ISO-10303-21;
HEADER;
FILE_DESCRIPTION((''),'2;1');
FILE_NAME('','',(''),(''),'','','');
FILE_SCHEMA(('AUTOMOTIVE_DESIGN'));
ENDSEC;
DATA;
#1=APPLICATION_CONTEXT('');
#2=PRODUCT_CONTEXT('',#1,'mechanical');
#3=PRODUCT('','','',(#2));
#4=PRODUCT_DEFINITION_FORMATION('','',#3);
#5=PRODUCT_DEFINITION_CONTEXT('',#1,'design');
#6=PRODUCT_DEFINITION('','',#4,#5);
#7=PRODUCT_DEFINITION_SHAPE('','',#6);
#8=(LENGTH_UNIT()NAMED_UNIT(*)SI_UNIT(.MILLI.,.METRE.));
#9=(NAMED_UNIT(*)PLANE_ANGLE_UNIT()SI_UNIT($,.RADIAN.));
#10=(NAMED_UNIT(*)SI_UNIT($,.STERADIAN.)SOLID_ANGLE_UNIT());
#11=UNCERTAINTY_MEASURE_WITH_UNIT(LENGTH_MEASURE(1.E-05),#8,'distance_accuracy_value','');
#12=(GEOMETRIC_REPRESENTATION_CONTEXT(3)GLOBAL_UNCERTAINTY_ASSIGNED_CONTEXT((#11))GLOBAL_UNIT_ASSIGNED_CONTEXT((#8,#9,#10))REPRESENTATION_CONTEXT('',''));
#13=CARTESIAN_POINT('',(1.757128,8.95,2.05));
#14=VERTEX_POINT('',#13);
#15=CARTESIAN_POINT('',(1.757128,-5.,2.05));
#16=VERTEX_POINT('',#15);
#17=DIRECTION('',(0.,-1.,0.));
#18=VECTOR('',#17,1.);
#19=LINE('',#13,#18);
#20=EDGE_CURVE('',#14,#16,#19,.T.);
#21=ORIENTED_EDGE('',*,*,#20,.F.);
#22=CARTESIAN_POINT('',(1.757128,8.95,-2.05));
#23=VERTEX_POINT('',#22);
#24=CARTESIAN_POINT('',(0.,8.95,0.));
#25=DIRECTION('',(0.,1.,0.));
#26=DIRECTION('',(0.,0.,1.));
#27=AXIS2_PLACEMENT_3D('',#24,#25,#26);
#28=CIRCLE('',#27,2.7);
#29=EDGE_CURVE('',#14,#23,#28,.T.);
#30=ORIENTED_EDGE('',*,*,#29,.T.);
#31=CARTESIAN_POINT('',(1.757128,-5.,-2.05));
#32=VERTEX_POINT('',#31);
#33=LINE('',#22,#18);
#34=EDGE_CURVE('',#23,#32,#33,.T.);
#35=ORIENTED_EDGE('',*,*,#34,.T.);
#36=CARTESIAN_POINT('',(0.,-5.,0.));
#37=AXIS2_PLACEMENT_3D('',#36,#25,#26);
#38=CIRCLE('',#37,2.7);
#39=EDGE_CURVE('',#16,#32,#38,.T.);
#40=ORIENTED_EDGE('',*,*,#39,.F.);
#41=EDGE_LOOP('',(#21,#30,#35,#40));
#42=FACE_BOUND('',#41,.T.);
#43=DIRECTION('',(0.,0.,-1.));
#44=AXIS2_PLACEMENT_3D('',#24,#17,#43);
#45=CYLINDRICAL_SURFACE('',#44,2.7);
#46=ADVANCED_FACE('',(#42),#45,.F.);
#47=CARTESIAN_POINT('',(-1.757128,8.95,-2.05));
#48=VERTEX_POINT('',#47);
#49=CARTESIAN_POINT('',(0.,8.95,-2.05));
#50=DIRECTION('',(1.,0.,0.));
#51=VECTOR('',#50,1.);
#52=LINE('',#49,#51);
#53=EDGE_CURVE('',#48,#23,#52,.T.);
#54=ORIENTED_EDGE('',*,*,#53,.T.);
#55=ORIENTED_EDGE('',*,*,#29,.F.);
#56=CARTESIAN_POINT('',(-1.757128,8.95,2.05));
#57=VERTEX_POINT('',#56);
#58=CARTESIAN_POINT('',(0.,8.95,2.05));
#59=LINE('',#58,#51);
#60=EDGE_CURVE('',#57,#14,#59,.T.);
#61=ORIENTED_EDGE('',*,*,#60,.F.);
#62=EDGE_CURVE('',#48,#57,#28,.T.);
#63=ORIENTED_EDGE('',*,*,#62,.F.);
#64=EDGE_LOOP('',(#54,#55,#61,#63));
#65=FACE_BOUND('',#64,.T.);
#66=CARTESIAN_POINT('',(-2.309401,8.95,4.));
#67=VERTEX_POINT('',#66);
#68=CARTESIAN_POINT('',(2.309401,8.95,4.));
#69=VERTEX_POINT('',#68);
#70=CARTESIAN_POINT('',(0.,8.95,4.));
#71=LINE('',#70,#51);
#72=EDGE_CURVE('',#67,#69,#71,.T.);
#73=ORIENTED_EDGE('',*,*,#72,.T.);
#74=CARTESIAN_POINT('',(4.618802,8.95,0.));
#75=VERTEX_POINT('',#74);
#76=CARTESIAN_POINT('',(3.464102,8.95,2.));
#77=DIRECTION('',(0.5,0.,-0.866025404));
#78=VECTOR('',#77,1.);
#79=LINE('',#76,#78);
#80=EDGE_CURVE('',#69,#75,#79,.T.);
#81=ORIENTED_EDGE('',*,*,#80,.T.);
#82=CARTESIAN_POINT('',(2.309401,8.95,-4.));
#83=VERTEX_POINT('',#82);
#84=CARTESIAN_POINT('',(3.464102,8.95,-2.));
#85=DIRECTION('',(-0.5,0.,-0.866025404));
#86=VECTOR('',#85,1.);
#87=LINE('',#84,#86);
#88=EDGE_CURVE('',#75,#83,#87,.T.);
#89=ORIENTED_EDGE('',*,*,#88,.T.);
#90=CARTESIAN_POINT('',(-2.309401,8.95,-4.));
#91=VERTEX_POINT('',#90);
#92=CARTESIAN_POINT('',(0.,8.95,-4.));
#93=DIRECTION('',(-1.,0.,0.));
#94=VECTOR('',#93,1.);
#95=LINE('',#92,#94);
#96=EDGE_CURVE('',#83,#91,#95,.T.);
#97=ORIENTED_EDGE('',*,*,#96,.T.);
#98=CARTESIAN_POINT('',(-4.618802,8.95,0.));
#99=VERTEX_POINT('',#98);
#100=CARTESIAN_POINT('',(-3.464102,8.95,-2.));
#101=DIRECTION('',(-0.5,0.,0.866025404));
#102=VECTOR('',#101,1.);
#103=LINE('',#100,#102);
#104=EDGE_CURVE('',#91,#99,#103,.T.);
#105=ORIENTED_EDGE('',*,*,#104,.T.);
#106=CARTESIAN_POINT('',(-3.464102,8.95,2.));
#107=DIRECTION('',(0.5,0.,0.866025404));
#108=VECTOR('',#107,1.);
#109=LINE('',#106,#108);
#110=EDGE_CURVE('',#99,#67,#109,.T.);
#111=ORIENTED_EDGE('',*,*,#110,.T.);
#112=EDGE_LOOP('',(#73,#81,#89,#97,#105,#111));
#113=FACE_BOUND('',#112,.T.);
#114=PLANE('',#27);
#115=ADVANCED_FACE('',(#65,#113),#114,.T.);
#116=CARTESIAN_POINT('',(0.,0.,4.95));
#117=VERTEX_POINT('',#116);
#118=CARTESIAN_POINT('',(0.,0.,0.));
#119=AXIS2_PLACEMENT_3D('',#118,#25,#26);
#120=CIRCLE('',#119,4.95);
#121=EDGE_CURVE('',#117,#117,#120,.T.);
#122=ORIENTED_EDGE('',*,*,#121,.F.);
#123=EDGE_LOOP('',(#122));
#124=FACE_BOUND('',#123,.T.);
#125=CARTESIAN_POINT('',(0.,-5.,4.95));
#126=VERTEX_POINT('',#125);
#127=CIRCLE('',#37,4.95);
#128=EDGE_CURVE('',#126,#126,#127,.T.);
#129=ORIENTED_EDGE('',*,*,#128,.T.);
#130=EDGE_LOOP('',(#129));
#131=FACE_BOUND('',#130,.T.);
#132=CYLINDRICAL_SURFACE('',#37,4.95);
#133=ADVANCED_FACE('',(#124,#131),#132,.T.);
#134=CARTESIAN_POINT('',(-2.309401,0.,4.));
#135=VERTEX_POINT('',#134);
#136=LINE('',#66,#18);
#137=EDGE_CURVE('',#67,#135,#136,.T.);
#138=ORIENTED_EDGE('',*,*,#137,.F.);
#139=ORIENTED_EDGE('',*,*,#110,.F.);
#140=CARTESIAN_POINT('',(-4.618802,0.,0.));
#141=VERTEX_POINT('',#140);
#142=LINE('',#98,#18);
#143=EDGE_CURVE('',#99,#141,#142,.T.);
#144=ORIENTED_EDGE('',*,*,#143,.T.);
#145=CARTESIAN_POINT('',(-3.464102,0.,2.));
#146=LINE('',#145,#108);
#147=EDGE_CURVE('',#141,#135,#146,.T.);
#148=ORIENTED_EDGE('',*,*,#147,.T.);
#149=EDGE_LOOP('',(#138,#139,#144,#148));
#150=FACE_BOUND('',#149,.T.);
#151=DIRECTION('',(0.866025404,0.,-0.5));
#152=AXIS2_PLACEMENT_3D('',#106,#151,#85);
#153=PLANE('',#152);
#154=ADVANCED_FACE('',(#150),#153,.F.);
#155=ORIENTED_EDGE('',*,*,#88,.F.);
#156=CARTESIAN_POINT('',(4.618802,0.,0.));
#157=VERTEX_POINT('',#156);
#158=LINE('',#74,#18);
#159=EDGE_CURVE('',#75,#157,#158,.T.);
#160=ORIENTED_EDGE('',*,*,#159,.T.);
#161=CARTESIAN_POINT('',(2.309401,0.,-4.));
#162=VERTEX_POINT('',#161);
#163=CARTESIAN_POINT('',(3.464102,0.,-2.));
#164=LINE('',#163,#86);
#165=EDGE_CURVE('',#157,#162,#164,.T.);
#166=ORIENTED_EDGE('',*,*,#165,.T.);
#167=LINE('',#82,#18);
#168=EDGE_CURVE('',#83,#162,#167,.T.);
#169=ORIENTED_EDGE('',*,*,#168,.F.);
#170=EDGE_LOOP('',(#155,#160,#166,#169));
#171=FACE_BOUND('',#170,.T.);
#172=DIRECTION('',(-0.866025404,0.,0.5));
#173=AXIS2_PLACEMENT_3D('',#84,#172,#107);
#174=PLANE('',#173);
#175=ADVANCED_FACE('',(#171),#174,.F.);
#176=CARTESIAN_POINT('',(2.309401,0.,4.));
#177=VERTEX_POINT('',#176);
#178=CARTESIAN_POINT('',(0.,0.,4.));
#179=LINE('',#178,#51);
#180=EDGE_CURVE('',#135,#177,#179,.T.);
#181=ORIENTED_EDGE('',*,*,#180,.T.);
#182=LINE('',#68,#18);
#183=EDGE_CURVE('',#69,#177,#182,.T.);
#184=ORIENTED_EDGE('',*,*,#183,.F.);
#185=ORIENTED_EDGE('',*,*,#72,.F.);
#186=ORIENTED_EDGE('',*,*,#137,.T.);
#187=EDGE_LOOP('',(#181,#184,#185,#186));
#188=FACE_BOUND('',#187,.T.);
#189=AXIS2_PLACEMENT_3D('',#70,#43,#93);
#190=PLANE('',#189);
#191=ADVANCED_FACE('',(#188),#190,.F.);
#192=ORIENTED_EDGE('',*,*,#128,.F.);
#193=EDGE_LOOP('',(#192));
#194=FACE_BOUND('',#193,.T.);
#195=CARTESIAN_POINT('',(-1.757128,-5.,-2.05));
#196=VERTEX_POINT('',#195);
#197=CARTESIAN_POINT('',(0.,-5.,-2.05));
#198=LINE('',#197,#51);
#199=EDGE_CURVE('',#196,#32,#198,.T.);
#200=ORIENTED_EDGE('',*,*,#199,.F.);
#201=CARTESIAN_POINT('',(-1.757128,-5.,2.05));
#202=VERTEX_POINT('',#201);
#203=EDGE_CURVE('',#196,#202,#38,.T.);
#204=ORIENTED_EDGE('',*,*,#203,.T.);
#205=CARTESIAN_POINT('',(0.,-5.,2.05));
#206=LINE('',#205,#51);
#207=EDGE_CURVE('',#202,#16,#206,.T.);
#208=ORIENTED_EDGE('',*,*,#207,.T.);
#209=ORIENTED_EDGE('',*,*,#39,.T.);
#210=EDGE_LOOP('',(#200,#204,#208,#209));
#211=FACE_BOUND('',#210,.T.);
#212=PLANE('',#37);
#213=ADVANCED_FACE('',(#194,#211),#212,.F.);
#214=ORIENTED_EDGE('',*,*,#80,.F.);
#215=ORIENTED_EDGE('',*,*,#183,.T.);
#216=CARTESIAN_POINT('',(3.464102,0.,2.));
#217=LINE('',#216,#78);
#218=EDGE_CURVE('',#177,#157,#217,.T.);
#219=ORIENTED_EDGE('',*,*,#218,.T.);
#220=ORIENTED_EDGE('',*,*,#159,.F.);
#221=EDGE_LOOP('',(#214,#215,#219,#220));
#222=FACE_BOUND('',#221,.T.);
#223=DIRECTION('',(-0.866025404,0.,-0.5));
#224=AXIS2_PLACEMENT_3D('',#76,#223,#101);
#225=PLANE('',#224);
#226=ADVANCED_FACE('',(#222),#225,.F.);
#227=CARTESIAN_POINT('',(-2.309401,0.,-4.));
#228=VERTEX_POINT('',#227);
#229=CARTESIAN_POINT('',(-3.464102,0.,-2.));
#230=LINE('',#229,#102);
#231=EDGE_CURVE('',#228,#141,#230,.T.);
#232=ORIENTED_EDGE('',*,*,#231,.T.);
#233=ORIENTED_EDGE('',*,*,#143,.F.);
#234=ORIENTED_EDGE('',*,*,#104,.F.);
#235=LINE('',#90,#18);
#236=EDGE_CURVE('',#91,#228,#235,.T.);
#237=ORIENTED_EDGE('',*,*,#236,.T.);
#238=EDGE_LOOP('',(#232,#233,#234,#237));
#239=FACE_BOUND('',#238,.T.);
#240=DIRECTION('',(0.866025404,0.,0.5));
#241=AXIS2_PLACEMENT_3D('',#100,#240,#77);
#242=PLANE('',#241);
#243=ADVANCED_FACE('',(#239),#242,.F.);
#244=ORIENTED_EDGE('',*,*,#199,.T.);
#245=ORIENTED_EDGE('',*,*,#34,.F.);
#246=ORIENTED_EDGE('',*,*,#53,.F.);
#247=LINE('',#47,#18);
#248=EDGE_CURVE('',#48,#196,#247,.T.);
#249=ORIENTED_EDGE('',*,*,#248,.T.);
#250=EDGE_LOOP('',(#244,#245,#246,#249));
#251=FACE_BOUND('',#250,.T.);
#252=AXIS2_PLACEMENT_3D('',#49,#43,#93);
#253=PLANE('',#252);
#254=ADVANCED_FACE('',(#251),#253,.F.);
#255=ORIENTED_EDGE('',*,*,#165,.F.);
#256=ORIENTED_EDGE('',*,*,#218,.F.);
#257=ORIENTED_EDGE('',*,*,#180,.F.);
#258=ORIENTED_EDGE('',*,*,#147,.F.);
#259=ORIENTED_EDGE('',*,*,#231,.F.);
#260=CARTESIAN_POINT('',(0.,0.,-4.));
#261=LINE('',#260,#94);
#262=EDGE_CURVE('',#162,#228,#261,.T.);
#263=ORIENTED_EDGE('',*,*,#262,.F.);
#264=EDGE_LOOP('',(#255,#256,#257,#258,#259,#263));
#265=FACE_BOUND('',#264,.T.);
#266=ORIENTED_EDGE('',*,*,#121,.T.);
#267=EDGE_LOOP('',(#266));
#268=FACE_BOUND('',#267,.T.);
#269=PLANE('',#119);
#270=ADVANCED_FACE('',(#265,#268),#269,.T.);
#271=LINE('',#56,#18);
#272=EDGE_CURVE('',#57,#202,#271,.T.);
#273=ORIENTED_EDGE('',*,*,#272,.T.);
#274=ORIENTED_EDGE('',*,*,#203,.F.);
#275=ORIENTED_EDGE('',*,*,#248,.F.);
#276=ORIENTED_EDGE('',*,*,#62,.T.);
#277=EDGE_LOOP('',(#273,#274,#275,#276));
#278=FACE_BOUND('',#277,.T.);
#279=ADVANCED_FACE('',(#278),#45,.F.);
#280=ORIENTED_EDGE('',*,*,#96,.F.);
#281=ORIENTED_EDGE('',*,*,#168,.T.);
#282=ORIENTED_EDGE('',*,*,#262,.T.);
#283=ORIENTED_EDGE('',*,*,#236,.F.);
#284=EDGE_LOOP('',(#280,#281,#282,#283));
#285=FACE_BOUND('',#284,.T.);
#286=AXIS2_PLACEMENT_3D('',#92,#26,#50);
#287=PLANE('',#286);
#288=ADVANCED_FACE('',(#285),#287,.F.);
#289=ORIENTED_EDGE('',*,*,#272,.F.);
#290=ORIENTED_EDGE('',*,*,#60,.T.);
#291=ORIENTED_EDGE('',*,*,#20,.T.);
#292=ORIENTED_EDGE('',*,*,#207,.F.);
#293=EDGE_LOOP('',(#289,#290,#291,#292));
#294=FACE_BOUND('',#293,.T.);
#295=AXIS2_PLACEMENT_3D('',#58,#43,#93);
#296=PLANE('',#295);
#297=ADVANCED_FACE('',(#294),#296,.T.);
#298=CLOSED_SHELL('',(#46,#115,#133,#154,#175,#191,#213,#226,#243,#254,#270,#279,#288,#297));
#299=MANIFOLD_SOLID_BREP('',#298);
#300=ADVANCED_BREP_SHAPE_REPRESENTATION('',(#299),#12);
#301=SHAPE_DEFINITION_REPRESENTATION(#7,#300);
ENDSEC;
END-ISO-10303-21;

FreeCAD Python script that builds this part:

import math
import FreeCAD as App
import Part
import Sketcher
Q = App.Units.Quantity


def add_polygon(sketch, points):
    """Adds a closed chain of lines whose ends are joined by coincident constraints."""
    first, n = sketch.GeometryCount, len(points)
    for a, b in zip(points, points[1:] + points[:1]):
        sketch.addGeometry(Part.LineSegment(App.Vector(*a, 0), App.Vector(*b, 0)), False)
    for i in range(n):
        sketch.addConstraint(Sketcher.Constraint("Coincident", first + i, 2, first + (i + 1) % n, 1))

doc = App.newDocument("Part")
body = doc.addObject("PartDesign::Body", "Body")

# Sketch on XZ plane
sketch1 = body.newObject("Sketcher::SketchObject", "Sketch")
sketch1.AttachmentSupport = (doc.getObject("XZ_Plane"), [""])
sketch1.MapMode = "FlatFace"
add_polygon(sketch1, [(2.309401, -4), (-2.309401, -4), (-4.618802, 0), (-2.309401, 4), (2.309401, 4), (4.618802, 0)])  # lines 0-5
sketch1.addGeometry(Part.ArcOfCircle(Part.Circle(App.Vector(0, 0, 0), App.Vector(0, 0, 1), 2.7), math.radians(130.601061), math.radians(229.398939)), False)  # 6
sketch1.addGeometry(Part.LineSegment(App.Vector(-1.757128, -2.05, 0), App.Vector(1.757128, -2.05, 0)), False)  # 7
sketch1.addGeometry(Part.ArcOfCircle(Part.Circle(App.Vector(0, 0, 0), App.Vector(0, 0, 1), 2.7), math.radians(-49.398939), math.radians(49.398939)), False)  # 8
sketch1.addGeometry(Part.LineSegment(App.Vector(1.757128, 2.05, 0), App.Vector(-1.757128, 2.05, 0)), False)  # 9
sketch1.addConstraint([
    Sketcher.Constraint("Coincident", 6, 2, 7, 1),
    Sketcher.Constraint("Coincident", 7, 2, 8, 1),
    Sketcher.Constraint("Coincident", 8, 2, 9, 1),
    Sketcher.Constraint("Coincident", 9, 2, 6, 1),
    Sketcher.Constraint("Horizontal", 0),
    Sketcher.Constraint("Horizontal", 3),
    Sketcher.Constraint("Horizontal", 7),
    Sketcher.Constraint("Horizontal", 9),
    Sketcher.Constraint("Coincident", 6, 3, -1, 1),
    Sketcher.Constraint("Coincident", 8, 3, -1, 1),
    Sketcher.Constraint("Equal", 6, 8),
    Sketcher.Constraint("Symmetric", 0, 2, 3, 2, -1, 1),
    Sketcher.Constraint("Symmetric", 1, 2, 4, 2, -1, 1),
    Sketcher.Constraint("PointOnObject", 1, 2, -1),
    Sketcher.Constraint("Parallel", 2, 5),
    Sketcher.Constraint("Vertical", 0, 2, 2, 2),
    Sketcher.Constraint("Vertical", 7, 2, 8, 2),
    Sketcher.Constraint("Radius", 6, 2.7),
    Sketcher.Constraint("Angle", 1, Q("120 deg")),
    Sketcher.Constraint("DistanceY", 0, 2, -1, 1, 4.0),
    Sketcher.Constraint("DistanceY", 7, 2, 8, 2, 4.1),
    Sketcher.Constraint("DistanceX", 0, 2, -1, 1, 2.309401),
])
pad1 = body.newObject("PartDesign::Pad", "Pad")
pad1.Profile = sketch1
pad1.Length = 8.95
pad1.Reversed = True

# Sketch on XZ plane
sketch2 = body.newObject("Sketcher::SketchObject", "Sketch001")
sketch2.AttachmentSupport = (doc.getObject("XZ_Plane"), [""])
sketch2.MapMode = "FlatFace"
sketch2.addGeometry([
    Part.Circle(App.Vector(0, 0, 0), App.Vector(0, 0, 1), 4.95),  # 0
    Part.ArcOfCircle(Part.Circle(App.Vector(0, 0, 0), App.Vector(0, 0, 1), 2.7), math.radians(-49.398939), math.radians(49.398939)),  # 1
    Part.LineSegment(App.Vector(1.757128, 2.05, 0), App.Vector(-1.757128, 2.05, 0)),  # 2
    Part.ArcOfCircle(Part.Circle(App.Vector(0, 0, 0), App.Vector(0, 0, 1), 2.7), math.radians(130.601061), math.radians(229.398939)),  # 3
    Part.LineSegment(App.Vector(-1.757128, -2.05, 0), App.Vector(1.757128, -2.05, 0)),  # 4
], False)
sketch2.addConstraint([
    Sketcher.Constraint("Coincident", 1, 2, 2, 1),
    Sketcher.Constraint("Coincident", 2, 2, 3, 1),
    Sketcher.Constraint("Coincident", 3, 2, 4, 1),
    Sketcher.Constraint("Coincident", 4, 2, 1, 1),
    Sketcher.Constraint("Horizontal", 2),
    Sketcher.Constraint("Horizontal", 4),
    Sketcher.Constraint("Coincident", 0, 3, -1, 1),
    Sketcher.Constraint("Coincident", 1, 3, -1, 1),
    Sketcher.Constraint("Coincident", 3, 3, -1, 1),
    Sketcher.Constraint("Equal", 1, 3),
    Sketcher.Constraint("Vertical", 2, 2, 3, 2),
    Sketcher.Constraint("Diameter", 0, 9.9),
    Sketcher.Constraint("Radius", 1, 2.7),
    Sketcher.Constraint("DistanceY", 3, 2, 2, 2, 4.1),
])
pad2 = body.newObject("PartDesign::Pad", "Pad001")
pad2.Profile = sketch2
pad2.Length = 5

doc.recompute()
